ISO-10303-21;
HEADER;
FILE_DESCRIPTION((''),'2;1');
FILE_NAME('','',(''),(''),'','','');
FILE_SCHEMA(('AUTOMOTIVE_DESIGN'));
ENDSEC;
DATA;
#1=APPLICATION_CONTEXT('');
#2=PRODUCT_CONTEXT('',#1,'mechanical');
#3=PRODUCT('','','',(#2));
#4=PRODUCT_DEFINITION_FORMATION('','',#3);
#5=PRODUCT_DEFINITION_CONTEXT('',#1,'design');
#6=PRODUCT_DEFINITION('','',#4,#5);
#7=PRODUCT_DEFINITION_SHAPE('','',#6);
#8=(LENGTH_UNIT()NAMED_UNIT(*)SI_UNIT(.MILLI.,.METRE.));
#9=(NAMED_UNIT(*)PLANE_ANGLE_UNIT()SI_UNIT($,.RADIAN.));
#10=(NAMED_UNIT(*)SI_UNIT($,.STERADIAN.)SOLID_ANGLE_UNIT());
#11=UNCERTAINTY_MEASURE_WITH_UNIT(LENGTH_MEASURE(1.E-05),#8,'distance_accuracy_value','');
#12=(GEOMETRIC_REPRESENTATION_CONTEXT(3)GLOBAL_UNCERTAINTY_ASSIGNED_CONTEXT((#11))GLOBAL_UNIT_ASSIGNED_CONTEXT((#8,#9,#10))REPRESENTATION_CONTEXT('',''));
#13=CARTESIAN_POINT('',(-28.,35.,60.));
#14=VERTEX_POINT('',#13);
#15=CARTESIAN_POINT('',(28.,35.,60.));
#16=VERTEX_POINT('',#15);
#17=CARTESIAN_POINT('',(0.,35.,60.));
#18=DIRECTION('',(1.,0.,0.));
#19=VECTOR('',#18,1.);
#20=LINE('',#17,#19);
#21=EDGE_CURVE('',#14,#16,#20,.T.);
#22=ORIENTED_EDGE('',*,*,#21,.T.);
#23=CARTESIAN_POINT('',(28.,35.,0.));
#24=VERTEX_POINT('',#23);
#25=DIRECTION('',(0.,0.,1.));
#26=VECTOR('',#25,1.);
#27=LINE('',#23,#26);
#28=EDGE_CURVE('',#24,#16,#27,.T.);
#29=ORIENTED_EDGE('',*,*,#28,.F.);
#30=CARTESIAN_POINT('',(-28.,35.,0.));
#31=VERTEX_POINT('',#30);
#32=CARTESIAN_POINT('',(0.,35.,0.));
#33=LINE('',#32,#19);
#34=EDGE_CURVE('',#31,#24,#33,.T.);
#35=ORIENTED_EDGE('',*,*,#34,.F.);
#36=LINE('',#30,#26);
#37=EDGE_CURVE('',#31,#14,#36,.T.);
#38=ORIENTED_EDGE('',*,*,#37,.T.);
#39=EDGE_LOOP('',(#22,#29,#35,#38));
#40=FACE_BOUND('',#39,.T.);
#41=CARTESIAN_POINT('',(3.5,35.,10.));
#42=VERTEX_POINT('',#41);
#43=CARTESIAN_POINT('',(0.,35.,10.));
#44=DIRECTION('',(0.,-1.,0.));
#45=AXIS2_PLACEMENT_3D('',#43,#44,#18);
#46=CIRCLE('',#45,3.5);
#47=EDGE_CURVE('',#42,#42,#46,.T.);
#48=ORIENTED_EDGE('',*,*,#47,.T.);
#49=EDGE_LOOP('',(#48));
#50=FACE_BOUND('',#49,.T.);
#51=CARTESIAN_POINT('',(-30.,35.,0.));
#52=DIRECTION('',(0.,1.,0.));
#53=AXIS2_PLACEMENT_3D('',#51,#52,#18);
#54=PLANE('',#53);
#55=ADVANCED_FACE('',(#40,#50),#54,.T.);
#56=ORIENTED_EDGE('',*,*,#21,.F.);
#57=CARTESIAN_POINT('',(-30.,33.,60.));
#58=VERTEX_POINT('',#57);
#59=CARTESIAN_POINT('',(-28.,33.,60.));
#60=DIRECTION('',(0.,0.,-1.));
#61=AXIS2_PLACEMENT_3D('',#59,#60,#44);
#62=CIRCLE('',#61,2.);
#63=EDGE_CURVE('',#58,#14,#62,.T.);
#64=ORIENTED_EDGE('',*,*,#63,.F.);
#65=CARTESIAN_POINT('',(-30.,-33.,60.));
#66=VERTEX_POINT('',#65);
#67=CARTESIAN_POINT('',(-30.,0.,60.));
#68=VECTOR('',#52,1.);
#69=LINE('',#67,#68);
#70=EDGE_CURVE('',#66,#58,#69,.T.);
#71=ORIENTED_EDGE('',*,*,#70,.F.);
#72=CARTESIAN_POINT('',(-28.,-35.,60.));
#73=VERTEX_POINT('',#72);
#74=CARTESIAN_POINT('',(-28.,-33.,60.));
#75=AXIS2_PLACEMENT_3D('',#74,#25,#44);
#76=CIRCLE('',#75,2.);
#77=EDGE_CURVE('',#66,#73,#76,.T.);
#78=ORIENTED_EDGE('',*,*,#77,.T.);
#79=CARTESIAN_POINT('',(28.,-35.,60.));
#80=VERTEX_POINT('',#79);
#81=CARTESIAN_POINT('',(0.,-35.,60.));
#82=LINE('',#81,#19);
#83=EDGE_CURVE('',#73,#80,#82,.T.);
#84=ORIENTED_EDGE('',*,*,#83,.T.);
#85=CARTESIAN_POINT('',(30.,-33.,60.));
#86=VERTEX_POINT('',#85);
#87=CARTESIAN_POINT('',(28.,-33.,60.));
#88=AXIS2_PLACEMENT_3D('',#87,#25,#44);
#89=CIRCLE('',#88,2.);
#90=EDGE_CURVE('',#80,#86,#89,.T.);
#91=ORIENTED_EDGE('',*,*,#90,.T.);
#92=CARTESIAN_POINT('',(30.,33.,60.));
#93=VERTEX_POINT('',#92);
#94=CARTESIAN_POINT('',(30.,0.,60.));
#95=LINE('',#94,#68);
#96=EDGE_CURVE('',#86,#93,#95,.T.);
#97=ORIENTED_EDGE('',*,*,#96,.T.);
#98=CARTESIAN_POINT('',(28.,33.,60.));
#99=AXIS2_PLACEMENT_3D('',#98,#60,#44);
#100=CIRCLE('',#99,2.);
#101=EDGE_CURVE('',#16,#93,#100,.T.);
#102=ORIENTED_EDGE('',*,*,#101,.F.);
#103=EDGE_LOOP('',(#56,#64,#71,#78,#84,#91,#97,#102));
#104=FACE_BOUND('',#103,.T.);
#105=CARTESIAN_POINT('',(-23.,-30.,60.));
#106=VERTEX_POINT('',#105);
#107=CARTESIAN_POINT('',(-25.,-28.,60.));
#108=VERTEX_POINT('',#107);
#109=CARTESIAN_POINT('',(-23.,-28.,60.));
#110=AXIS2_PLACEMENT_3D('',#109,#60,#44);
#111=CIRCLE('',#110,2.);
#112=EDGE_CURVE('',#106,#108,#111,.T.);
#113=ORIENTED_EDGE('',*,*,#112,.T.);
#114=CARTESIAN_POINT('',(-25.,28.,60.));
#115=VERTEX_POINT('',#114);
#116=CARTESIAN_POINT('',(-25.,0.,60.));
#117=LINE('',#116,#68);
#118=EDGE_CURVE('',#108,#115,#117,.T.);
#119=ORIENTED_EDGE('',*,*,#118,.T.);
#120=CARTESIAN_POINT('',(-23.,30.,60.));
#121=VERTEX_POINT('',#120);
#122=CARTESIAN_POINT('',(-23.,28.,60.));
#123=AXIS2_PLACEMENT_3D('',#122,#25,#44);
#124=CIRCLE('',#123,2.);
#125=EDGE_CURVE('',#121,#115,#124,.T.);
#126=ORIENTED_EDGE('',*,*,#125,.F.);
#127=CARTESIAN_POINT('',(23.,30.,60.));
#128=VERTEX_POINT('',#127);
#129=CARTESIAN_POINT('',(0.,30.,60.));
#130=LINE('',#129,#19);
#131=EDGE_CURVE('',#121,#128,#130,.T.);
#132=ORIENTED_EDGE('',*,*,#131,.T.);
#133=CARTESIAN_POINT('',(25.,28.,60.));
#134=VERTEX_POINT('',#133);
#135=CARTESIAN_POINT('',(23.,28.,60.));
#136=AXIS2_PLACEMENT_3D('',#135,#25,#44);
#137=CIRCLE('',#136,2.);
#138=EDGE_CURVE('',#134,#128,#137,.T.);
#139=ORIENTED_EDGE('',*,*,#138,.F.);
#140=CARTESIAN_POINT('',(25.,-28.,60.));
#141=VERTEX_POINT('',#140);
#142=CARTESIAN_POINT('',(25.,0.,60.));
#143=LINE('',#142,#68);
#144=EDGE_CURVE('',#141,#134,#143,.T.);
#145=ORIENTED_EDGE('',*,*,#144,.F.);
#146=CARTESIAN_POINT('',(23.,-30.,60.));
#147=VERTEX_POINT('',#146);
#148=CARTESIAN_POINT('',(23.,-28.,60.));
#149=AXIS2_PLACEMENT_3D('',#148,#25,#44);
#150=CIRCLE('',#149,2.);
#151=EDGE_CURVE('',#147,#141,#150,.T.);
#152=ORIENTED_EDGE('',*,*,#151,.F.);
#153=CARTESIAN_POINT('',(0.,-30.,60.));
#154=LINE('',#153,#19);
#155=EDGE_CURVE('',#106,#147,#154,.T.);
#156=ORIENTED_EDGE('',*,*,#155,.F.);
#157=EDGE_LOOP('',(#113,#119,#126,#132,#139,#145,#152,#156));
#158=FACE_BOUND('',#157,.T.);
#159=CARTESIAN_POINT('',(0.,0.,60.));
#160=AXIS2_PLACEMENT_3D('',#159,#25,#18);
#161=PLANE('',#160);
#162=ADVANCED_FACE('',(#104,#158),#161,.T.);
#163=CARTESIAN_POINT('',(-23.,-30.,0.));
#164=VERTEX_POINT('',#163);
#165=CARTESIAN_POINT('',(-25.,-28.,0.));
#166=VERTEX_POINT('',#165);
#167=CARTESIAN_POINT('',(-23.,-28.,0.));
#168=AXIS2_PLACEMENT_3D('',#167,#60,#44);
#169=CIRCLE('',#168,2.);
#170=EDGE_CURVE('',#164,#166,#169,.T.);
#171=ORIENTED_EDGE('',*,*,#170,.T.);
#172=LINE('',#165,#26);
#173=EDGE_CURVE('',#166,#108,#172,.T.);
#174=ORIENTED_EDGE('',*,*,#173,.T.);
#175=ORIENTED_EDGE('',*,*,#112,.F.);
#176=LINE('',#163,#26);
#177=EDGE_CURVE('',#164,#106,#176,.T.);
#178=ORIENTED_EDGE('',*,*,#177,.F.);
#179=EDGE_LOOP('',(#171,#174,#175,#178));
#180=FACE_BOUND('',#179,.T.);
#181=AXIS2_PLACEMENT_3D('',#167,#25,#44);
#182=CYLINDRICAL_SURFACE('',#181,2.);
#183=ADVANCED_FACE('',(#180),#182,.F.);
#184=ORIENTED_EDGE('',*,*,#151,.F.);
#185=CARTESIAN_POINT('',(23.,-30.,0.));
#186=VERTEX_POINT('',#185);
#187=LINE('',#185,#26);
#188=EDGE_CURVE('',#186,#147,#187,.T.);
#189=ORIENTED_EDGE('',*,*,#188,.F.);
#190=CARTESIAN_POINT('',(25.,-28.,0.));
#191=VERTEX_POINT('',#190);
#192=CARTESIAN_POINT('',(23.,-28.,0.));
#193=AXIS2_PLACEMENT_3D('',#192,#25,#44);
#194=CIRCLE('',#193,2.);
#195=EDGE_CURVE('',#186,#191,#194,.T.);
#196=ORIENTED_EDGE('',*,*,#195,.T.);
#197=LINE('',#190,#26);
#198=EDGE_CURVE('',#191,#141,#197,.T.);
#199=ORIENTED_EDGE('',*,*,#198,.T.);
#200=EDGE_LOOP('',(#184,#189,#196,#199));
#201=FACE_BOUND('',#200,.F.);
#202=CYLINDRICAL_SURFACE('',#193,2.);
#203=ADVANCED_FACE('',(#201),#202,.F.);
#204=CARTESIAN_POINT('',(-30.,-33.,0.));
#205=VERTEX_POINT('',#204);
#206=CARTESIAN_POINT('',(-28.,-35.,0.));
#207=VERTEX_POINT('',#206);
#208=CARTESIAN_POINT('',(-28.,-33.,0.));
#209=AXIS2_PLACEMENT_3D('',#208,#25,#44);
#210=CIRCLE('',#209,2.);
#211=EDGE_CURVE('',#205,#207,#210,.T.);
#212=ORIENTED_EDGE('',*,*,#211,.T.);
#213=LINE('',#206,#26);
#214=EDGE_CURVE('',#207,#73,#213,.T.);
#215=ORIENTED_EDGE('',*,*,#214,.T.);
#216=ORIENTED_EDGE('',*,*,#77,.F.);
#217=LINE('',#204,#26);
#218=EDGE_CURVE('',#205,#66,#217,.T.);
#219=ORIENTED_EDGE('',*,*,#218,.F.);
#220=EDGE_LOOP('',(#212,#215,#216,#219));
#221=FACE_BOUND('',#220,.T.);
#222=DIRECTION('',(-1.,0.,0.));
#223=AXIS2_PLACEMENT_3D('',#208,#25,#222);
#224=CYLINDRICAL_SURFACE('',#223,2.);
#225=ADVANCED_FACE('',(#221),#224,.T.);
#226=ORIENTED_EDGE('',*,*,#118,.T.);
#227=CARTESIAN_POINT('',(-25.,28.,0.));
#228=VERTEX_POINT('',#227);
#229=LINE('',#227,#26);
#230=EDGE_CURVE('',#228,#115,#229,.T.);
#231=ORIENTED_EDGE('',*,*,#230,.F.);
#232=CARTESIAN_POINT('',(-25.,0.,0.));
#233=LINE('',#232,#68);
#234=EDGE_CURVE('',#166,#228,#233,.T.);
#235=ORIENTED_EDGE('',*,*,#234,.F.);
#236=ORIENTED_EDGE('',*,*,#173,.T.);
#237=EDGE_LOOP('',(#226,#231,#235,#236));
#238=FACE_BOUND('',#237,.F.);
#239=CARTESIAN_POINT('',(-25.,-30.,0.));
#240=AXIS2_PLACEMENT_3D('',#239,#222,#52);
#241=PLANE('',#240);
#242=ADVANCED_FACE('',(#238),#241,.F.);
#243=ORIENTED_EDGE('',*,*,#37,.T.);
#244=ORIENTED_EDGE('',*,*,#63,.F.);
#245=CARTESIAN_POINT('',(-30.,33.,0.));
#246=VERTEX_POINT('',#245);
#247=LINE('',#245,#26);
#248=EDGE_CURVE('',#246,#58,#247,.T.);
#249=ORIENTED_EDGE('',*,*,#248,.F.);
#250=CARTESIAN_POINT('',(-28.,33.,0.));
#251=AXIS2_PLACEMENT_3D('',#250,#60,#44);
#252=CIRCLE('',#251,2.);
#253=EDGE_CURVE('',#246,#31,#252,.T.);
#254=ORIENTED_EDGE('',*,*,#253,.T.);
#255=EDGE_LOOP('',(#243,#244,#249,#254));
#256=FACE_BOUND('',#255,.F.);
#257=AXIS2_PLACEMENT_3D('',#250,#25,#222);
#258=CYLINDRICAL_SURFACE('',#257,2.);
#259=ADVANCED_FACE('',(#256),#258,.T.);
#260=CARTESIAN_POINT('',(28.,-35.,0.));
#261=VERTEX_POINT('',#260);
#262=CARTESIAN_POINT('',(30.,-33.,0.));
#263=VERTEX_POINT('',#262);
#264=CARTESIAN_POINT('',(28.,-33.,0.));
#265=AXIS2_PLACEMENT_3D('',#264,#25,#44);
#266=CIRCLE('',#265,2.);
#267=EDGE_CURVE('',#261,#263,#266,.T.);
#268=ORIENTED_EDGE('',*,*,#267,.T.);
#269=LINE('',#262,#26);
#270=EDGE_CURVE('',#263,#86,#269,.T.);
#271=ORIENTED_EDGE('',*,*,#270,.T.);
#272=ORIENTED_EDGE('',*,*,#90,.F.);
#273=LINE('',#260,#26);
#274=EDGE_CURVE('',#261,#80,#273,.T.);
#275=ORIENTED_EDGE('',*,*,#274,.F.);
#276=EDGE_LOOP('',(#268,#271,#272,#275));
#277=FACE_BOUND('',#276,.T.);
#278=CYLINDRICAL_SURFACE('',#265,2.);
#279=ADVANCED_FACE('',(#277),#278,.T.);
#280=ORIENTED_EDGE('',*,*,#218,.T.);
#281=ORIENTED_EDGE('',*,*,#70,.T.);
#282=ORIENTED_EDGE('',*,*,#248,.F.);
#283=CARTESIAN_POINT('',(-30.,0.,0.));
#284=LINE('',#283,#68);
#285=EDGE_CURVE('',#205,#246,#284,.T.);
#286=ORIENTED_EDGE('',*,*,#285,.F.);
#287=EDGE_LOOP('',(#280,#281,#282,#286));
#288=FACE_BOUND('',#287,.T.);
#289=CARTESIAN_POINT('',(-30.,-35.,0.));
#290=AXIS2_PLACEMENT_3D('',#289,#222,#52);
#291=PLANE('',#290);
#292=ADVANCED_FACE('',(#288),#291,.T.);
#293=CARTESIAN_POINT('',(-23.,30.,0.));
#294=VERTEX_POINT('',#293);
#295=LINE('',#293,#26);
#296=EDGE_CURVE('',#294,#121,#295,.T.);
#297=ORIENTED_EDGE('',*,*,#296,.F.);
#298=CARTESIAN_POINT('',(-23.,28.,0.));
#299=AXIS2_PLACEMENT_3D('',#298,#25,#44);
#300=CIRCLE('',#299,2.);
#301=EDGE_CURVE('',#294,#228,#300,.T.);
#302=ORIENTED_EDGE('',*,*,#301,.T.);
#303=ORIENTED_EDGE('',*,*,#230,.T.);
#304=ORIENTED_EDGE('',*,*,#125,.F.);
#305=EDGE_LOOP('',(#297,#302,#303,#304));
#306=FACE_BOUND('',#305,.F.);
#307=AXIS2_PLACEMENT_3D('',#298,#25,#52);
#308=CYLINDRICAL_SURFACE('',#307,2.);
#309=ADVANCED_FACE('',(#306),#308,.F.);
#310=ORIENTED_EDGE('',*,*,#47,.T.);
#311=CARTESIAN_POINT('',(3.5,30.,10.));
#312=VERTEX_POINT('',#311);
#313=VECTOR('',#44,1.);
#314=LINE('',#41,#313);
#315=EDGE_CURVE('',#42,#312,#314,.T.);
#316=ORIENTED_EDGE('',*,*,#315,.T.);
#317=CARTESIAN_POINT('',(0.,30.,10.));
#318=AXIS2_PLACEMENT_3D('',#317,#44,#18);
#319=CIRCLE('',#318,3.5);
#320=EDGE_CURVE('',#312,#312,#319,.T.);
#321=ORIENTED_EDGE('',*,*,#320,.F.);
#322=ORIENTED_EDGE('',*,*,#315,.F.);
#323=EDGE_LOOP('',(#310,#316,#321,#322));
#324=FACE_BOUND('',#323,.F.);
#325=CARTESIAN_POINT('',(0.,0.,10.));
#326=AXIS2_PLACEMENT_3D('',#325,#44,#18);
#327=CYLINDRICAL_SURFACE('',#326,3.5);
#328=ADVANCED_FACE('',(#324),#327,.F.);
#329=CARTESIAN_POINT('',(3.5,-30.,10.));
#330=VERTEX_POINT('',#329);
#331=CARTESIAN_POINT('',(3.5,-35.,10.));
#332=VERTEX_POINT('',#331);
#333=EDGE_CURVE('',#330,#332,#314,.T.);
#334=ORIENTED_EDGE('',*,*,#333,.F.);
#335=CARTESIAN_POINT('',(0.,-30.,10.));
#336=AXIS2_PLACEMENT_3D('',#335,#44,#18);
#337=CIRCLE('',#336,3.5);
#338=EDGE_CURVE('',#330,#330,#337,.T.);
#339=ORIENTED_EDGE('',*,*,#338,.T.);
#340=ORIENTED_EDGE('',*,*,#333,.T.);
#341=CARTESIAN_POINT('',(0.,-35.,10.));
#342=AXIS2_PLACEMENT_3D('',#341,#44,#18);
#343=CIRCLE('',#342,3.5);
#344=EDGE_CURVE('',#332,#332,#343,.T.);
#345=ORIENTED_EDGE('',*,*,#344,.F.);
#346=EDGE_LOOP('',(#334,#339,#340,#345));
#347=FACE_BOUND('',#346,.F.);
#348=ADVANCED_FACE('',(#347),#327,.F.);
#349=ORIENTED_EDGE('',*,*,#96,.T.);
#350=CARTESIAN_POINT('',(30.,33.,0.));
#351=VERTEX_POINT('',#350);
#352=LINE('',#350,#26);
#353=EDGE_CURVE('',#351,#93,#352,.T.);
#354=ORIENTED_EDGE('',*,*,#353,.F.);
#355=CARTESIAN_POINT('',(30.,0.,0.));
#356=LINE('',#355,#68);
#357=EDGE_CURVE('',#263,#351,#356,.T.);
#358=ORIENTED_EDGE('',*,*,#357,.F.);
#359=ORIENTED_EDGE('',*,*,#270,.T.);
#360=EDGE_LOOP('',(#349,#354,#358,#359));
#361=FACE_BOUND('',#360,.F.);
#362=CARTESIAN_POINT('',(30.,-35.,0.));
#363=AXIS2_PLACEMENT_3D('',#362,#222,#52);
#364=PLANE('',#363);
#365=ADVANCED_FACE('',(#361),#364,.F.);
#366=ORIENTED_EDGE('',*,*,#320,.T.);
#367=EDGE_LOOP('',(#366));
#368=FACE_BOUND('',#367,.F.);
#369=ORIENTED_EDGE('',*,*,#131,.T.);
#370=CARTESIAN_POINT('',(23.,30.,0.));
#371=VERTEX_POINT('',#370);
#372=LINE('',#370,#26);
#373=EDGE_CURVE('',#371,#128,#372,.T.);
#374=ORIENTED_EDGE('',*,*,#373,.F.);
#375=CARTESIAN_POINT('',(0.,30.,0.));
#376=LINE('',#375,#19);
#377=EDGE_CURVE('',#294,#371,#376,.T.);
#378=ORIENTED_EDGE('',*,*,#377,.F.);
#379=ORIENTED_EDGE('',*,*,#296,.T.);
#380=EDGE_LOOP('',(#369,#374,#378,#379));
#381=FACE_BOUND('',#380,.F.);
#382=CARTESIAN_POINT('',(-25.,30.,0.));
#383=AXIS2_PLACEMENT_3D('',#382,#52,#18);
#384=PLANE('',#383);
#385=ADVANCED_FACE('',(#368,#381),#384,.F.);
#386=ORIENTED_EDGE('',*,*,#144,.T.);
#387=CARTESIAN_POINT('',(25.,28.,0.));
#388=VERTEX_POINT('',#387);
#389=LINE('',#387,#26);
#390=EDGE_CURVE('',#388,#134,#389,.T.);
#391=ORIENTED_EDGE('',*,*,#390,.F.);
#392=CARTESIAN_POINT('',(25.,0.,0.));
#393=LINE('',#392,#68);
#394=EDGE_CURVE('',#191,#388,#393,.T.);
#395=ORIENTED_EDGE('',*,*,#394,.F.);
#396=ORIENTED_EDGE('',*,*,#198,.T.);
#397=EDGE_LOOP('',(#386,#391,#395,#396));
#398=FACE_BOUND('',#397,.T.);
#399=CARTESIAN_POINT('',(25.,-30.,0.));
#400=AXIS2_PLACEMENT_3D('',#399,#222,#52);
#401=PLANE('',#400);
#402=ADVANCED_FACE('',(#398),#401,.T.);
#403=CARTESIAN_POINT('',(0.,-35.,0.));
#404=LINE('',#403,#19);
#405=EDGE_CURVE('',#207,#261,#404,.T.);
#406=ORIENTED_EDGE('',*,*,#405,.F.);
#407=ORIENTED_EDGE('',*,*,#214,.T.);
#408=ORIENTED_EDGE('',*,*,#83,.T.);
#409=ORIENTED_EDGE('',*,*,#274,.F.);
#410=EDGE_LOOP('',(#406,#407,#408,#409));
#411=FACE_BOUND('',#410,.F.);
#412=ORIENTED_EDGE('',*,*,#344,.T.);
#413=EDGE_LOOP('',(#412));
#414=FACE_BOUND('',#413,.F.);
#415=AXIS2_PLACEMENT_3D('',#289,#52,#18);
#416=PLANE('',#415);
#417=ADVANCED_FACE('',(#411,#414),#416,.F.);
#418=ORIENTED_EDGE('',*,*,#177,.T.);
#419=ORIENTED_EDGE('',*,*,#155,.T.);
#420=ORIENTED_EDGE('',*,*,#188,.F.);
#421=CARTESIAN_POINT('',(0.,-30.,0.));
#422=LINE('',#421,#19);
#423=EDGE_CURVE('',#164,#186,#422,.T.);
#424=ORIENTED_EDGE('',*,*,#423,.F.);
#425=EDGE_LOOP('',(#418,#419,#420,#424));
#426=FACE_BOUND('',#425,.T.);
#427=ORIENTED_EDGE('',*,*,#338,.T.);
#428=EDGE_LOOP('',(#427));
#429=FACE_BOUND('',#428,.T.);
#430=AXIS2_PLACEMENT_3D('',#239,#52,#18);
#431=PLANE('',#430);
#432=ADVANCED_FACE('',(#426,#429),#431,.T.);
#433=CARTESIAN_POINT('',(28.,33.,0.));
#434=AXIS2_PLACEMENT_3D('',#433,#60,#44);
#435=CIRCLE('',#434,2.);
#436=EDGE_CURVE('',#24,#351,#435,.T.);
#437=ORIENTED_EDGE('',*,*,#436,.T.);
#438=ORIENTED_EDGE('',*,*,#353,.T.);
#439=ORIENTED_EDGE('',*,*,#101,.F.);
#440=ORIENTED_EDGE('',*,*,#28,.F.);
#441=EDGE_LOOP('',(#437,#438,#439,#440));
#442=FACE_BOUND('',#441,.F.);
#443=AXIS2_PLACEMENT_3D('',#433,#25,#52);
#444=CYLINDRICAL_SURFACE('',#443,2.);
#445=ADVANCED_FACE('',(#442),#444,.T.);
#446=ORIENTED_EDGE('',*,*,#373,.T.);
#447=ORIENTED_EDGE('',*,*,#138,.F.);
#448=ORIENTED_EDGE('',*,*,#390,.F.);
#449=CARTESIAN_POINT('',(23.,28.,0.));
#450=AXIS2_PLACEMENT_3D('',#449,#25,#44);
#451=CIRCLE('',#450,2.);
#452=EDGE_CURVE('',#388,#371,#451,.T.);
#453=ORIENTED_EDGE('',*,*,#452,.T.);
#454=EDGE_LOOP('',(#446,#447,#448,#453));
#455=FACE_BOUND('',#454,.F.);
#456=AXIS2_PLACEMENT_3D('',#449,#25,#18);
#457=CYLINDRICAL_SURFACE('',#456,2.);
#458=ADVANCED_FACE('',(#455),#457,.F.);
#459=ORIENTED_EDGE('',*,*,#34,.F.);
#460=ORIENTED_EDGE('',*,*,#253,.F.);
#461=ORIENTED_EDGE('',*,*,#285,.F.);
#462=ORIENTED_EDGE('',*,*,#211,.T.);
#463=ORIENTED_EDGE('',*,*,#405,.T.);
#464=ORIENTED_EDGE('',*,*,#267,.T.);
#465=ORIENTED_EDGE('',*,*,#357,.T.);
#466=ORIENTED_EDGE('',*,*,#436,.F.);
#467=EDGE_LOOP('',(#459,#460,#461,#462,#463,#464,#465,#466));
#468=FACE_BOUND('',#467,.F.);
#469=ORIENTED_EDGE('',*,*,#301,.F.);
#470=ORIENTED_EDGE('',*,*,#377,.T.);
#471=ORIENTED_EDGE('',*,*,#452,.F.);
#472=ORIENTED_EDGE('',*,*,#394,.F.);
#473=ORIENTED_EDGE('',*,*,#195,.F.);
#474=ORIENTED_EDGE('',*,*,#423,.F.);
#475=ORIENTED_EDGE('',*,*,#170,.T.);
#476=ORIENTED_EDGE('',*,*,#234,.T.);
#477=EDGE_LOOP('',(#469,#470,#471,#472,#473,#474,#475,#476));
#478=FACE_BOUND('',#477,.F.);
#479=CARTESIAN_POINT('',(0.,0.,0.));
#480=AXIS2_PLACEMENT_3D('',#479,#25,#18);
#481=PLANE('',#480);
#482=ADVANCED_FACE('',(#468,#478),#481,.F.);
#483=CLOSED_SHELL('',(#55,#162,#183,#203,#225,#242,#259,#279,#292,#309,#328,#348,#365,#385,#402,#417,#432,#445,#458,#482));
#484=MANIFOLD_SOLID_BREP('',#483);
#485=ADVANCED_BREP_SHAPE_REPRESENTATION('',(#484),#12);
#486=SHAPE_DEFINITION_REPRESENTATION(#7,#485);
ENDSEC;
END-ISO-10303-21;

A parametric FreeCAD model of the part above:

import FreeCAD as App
import Part
import Sketcher
from FreeCAD import Vector


def edges_at(feature, points):
    """Names of the edges that pass closest to the given points."""
    edges = feature.Shape.Edges
    near = lambda p: min(range(len(edges)), key=lambda i: edges[i].distToShape(Part.Vertex(*p))[0])
    return sorted({f"Edge{near(p) + 1}" for p in points})

doc = App.newDocument("Part")
body = doc.addObject("PartDesign::Body", "Body")

# Sketch on XY plane
sketch1 = body.newObject("Sketcher::SketchObject", "Sketch")
sketch1.AttachmentSupport = (doc.getObject("XY_Plane"), [""])
sketch1.MapMode = "FlatFace"
sketch1.addGeometry(Part.LineSegment(Vector(-30, 35, 0), Vector(-30, -35, 0)), False)
sketch1.addGeometry(Part.LineSegment(Vector(-30, -35, 0), Vector(30, -35, 0)), False)
sketch1.addGeometry(Part.LineSegment(Vector(30, -35, 0), Vector(30, 35, 0)), False)
sketch1.addGeometry(Part.LineSegment(Vector(30, 35, 0), Vector(-30, 35, 0)), False)
sketch1.addGeometry(Part.LineSegment(Vector(25, -30, 0), Vector(-25, -30, 0)), False)
sketch1.addGeometry(Part.LineSegment(Vector(-25, -30, 0), Vector(-25, 30, 0)), False)
sketch1.addGeometry(Part.LineSegment(Vector(-25, 30, 0), Vector(25, 30, 0)), False)
sketch1.addGeometry(Part.LineSegment(Vector(25, 30, 0), Vector(25, -30, 0)), False)
sketch1.addConstraint(Sketcher.Constraint("Coincident", 0, 2, 1, 1))
sketch1.addConstraint(Sketcher.Constraint("Coincident", 1, 2, 2, 1))
sketch1.addConstraint(Sketcher.Constraint("Coincident", 2, 2, 3, 1))
sketch1.addConstraint(Sketcher.Constraint("Coincident", 3, 2, 0, 1))
sketch1.addConstraint(Sketcher.Constraint("Coincident", 4, 2, 5, 1))
sketch1.addConstraint(Sketcher.Constraint("Coincident", 5, 2, 6, 1))
sketch1.addConstraint(Sketcher.Constraint("Coincident", 6, 2, 7, 1))
sketch1.addConstraint(Sketcher.Constraint("Coincident", 7, 2, 4, 1))
sketch1.addConstraint(Sketcher.Constraint("Vertical", 0))
sketch1.addConstraint(Sketcher.Constraint("Horizontal", 1))
sketch1.addConstraint(Sketcher.Constraint("Vertical", 2))
sketch1.addConstraint(Sketcher.Constraint("Horizontal", 3))
sketch1.addConstraint(Sketcher.Constraint("Horizontal", 4))
sketch1.addConstraint(Sketcher.Constraint("Vertical", 5))
sketch1.addConstraint(Sketcher.Constraint("Horizontal", 6))
sketch1.addConstraint(Sketcher.Constraint("Vertical", 7))
sketch1.addConstraint(Sketcher.Constraint("Symmetric", 0, 2, 2, 2, -1, 1))
sketch1.addConstraint(Sketcher.Constraint("Symmetric", 4, 2, 6, 2, -1, 1))
sketch1.addConstraint(Sketcher.Constraint("Equal", 3, 5))
sketch1.addConstraint(Sketcher.Constraint("DistanceX", 1, 1, 1, 2, 60.0))
sketch1.addConstraint(Sketcher.Constraint("DistanceX", 4, 2, 4, 1, 50.0))
sketch1.addConstraint(Sketcher.Constraint("DistanceY", 0, 2, 0, 1, 70.0))
pad1 = body.newObject("PartDesign::Pad", "Pad")
pad1.Profile = sketch1
pad1.Length = 60
doc.recompute()

fillet = body.newObject("PartDesign::Fillet", "Fillet")
fillet.Base = (pad1, edges_at(pad1, [
    (-30, -35, 30),
    (30, -35, 30),
    (-30, 35, 30),
    (30, 35, 30),
    (25, -30, 30),
    (-25, 30, 30),
    (25, 30, 30),
    (-25, -30, 30),
]))
fillet.Radius = 2

# Sketch on XZ plane
sketch2 = body.newObject("Sketcher::SketchObject", "Sketch001")
sketch2.AttachmentSupport = (doc.getObject("XZ_Plane"), [""])
sketch2.MapMode = "FlatFace"
sketch2.addGeometry(Part.Circle(Vector(0, 10, 0), Vector(0, 0, 1), 3.5), False)
sketch2.addConstraint(Sketcher.Constraint("PointOnObject", 0, 3, -2))
sketch2.addConstraint(Sketcher.Constraint("Diameter", 0, 7.0))
sketch2.addConstraint(Sketcher.Constraint("DistanceY", -1, 1, 0, 3, 10.0))
pocket1 = body.newObject("PartDesign::Pocket", "Pocket")
pocket1.Profile = sketch2
pocket1.Length = 70
pocket1.Midplane = True

doc.recompute()
